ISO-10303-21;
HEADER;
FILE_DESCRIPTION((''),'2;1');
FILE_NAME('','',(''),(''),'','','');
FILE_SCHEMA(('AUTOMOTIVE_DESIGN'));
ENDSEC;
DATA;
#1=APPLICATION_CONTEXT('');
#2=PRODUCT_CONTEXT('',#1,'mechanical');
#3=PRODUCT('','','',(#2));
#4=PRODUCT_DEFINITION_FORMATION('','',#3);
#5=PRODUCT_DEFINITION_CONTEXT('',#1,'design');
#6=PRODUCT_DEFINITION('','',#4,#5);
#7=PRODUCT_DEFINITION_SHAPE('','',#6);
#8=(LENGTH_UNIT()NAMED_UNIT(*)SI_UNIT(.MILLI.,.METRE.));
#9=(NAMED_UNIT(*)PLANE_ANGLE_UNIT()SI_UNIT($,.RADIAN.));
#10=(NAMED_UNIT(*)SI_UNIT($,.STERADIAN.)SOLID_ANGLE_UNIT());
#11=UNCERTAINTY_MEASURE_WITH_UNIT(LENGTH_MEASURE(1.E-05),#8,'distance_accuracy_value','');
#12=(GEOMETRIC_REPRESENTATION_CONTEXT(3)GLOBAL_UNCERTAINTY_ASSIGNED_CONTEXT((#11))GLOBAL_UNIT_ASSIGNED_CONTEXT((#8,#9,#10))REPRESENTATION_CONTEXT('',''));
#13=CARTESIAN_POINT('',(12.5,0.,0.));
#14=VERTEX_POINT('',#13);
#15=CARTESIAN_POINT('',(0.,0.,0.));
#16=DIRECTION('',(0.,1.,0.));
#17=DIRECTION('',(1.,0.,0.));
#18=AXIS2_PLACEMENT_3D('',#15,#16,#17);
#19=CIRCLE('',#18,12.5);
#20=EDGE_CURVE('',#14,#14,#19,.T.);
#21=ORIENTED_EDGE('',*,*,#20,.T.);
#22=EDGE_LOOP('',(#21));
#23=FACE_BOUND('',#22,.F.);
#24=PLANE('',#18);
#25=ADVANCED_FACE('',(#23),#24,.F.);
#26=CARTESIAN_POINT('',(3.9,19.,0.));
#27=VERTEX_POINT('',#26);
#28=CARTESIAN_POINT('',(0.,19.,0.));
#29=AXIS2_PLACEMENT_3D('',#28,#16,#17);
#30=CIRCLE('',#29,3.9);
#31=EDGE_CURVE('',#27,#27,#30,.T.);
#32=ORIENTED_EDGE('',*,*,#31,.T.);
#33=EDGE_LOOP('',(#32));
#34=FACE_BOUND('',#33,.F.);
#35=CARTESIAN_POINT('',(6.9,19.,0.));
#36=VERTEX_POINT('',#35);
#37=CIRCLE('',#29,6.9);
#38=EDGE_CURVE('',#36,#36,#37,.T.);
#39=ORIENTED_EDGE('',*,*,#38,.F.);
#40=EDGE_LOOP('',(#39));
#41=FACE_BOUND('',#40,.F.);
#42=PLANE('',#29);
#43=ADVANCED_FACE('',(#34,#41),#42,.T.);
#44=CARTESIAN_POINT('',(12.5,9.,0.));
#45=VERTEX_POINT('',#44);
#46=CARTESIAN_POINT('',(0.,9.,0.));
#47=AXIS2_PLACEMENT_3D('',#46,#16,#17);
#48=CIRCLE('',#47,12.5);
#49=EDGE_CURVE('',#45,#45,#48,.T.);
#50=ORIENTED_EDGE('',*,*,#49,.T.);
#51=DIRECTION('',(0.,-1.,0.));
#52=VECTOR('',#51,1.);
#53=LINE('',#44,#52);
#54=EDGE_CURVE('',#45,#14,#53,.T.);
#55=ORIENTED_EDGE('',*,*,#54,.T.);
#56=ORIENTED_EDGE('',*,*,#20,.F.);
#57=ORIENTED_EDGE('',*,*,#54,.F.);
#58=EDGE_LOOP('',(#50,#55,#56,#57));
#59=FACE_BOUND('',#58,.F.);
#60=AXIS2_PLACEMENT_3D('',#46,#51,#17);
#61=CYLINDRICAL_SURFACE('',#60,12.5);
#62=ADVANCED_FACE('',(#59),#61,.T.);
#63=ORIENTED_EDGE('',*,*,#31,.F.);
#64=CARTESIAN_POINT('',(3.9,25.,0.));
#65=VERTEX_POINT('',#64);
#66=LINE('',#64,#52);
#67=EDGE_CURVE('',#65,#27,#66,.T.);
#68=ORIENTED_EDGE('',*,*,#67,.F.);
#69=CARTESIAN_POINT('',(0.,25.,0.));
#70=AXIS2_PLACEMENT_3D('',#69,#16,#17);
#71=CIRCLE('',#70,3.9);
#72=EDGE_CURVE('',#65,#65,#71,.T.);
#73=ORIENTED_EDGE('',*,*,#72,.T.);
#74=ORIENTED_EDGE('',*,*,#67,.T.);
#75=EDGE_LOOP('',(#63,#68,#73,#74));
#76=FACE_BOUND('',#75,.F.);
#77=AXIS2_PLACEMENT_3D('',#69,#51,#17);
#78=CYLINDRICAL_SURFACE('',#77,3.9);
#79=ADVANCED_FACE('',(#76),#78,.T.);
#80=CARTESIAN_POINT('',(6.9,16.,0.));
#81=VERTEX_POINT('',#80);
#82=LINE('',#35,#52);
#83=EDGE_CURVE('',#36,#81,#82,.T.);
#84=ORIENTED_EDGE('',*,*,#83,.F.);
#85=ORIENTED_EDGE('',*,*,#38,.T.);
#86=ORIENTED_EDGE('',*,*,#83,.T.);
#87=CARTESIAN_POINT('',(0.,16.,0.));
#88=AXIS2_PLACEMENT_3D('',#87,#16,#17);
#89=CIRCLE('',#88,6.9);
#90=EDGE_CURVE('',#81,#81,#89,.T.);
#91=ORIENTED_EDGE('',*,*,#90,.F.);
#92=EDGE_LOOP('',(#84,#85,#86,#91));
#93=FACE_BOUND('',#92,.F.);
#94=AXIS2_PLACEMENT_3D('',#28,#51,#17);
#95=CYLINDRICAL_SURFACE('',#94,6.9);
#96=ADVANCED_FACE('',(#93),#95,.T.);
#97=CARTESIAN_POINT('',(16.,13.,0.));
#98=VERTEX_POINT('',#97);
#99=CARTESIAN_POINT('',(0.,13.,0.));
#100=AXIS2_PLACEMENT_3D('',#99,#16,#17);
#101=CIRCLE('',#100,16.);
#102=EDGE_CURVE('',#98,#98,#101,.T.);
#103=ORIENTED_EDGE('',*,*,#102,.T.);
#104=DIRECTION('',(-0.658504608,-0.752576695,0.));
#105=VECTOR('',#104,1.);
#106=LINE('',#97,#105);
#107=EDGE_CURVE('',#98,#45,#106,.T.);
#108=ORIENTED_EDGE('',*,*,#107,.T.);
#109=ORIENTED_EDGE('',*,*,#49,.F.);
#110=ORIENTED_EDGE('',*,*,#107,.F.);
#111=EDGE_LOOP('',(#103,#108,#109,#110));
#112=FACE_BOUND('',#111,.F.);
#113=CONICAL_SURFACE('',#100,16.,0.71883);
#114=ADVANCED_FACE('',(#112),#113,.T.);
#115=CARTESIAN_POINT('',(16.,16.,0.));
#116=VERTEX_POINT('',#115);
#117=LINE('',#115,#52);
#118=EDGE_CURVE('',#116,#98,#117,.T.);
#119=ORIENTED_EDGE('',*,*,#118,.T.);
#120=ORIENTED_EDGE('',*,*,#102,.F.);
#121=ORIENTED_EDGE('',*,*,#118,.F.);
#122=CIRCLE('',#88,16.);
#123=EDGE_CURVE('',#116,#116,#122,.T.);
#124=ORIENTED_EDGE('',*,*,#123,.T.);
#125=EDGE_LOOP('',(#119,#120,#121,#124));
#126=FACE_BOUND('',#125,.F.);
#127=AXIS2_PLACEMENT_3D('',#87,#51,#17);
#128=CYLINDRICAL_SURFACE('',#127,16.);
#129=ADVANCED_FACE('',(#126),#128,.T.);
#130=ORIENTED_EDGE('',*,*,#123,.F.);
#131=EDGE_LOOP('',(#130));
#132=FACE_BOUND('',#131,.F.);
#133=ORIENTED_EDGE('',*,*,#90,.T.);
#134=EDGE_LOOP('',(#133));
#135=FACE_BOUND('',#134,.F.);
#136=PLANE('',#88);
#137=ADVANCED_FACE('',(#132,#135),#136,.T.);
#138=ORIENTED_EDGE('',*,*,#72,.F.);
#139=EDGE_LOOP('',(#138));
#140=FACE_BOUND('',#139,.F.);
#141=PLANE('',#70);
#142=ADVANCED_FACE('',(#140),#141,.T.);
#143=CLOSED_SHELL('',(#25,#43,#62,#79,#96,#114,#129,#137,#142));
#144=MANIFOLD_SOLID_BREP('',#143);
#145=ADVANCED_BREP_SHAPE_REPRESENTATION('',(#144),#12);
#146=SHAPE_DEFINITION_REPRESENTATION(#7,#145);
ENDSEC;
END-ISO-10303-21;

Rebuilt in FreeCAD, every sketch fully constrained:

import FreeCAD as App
import Part
import Sketcher

doc = App.newDocument("Part")
body = doc.addObject("PartDesign::Body", "Body")

# Sketch on XY plane
sketch1 = body.newObject("Sketcher::SketchObject", "Sketch")
sketch1.AttachmentSupport = (doc.getObject("XY_Plane"), [""])
sketch1.MapMode = "FlatFace"
sketch1.addGeometry(Part.LineSegment(App.Vector(3.9, 25, 0), App.Vector(0, 25, 0)), False)
sketch1.addGeometry(Part.LineSegment(App.Vector(0, 25, 0), App.Vector(0, 0, 0)), False)
sketch1.addGeometry(Part.LineSegment(App.Vector(0, 0, 0), App.Vector(12.5, 0, 0)), False)
sketch1.addGeometry(Part.LineSegment(App.Vector(12.5, 0, 0), App.Vector(12.5, 9, 0)), False)
sketch1.addGeometry(Part.LineSegment(App.Vector(12.5, 9, 0), App.Vector(16, 13, 0)), False)
sketch1.addGeometry(Part.LineSegment(App.Vector(16, 13, 0), App.Vector(16, 16, 0)), False)
sketch1.addGeometry(Part.LineSegment(App.Vector(16, 16, 0), App.Vector(6.9, 16, 0)), False)
sketch1.addGeometry(Part.LineSegment(App.Vector(6.9, 16, 0), App.Vector(6.9, 19, 0)), False)
sketch1.addGeometry(Part.LineSegment(App.Vector(6.9, 19, 0), App.Vector(3.9, 19, 0)), False)
sketch1.addGeometry(Part.LineSegment(App.Vector(3.9, 19, 0), App.Vector(3.9, 25, 0)), False)
sketch1.addConstraint(Sketcher.Constraint("Coincident", 0, 2, 1, 1))
sketch1.addConstraint(Sketcher.Constraint("Coincident", 1, 2, 2, 1))
sketch1.addConstraint(Sketcher.Constraint("Coincident", 2, 2, 3, 1))
sketch1.addConstraint(Sketcher.Constraint("Coincident", 3, 2, 4, 1))
sketch1.addConstraint(Sketcher.Constraint("Coincident", 4, 2, 5, 1))
sketch1.addConstraint(Sketcher.Constraint("Coincident", 5, 2, 6, 1))
sketch1.addConstraint(Sketcher.Constraint("Coincident", 6, 2, 7, 1))
sketch1.addConstraint(Sketcher.Constraint("Coincident", 7, 2, 8, 1))
sketch1.addConstraint(Sketcher.Constraint("Coincident", 8, 2, 9, 1))
sketch1.addConstraint(Sketcher.Constraint("Coincident", 9, 2, 0, 1))
sketch1.addConstraint(Sketcher.Constraint("Horizontal", 0))
sketch1.addConstraint(Sketcher.Constraint("Vertical", 1))
sketch1.addConstraint(Sketcher.Constraint("Horizontal", 2))
sketch1.addConstraint(Sketcher.Constraint("Vertical", 3))
sketch1.addConstraint(Sketcher.Constraint("Vertical", 5))
sketch1.addConstraint(Sketcher.Constraint("Horizontal", 6))
sketch1.addConstraint(Sketcher.Constraint("Vertical", 7))
sketch1.addConstraint(Sketcher.Constraint("Horizontal", 8))
sketch1.addConstraint(Sketcher.Constraint("Vertical", 9))
sketch1.addConstraint(Sketcher.Constraint("Coincident", 1, 2, -1, 1))
sketch1.addConstraint(Sketcher.Constraint("Equal", 8, 5))
sketch1.addConstraint(Sketcher.Constraint("Equal", 5, 7))
sketch1.addConstraint(Sketcher.Constraint("DistanceX", 8, 2, 8, 1, 3.0))
sketch1.addConstraint(Sketcher.Constraint("DistanceY", 1, 2, 1, 1, 25.0))
sketch1.addConstraint(Sketcher.Constraint("DistanceY", 3, 1, 3, 2, 9.0))
sketch1.addConstraint(Sketcher.Constraint("DistanceY", 9, 1, 9, 2, 6.0))
sketch1.addConstraint(Sketcher.Constraint("DistanceX", 0, 2, 0, 1, 3.9))
sketch1.addConstraint(Sketcher.Constraint("DistanceX", 2, 1, 2, 2, 12.5))
sketch1.addConstraint(Sketcher.Constraint("DistanceX", 6, 2, 6, 1, 9.1))
revolution = body.newObject("PartDesign::Revolution", "Revolution")
revolution.Profile = sketch1
revolution.ReferenceAxis = (sketch1, ["V_Axis"])
revolution.Angle = 360

doc.recompute()
